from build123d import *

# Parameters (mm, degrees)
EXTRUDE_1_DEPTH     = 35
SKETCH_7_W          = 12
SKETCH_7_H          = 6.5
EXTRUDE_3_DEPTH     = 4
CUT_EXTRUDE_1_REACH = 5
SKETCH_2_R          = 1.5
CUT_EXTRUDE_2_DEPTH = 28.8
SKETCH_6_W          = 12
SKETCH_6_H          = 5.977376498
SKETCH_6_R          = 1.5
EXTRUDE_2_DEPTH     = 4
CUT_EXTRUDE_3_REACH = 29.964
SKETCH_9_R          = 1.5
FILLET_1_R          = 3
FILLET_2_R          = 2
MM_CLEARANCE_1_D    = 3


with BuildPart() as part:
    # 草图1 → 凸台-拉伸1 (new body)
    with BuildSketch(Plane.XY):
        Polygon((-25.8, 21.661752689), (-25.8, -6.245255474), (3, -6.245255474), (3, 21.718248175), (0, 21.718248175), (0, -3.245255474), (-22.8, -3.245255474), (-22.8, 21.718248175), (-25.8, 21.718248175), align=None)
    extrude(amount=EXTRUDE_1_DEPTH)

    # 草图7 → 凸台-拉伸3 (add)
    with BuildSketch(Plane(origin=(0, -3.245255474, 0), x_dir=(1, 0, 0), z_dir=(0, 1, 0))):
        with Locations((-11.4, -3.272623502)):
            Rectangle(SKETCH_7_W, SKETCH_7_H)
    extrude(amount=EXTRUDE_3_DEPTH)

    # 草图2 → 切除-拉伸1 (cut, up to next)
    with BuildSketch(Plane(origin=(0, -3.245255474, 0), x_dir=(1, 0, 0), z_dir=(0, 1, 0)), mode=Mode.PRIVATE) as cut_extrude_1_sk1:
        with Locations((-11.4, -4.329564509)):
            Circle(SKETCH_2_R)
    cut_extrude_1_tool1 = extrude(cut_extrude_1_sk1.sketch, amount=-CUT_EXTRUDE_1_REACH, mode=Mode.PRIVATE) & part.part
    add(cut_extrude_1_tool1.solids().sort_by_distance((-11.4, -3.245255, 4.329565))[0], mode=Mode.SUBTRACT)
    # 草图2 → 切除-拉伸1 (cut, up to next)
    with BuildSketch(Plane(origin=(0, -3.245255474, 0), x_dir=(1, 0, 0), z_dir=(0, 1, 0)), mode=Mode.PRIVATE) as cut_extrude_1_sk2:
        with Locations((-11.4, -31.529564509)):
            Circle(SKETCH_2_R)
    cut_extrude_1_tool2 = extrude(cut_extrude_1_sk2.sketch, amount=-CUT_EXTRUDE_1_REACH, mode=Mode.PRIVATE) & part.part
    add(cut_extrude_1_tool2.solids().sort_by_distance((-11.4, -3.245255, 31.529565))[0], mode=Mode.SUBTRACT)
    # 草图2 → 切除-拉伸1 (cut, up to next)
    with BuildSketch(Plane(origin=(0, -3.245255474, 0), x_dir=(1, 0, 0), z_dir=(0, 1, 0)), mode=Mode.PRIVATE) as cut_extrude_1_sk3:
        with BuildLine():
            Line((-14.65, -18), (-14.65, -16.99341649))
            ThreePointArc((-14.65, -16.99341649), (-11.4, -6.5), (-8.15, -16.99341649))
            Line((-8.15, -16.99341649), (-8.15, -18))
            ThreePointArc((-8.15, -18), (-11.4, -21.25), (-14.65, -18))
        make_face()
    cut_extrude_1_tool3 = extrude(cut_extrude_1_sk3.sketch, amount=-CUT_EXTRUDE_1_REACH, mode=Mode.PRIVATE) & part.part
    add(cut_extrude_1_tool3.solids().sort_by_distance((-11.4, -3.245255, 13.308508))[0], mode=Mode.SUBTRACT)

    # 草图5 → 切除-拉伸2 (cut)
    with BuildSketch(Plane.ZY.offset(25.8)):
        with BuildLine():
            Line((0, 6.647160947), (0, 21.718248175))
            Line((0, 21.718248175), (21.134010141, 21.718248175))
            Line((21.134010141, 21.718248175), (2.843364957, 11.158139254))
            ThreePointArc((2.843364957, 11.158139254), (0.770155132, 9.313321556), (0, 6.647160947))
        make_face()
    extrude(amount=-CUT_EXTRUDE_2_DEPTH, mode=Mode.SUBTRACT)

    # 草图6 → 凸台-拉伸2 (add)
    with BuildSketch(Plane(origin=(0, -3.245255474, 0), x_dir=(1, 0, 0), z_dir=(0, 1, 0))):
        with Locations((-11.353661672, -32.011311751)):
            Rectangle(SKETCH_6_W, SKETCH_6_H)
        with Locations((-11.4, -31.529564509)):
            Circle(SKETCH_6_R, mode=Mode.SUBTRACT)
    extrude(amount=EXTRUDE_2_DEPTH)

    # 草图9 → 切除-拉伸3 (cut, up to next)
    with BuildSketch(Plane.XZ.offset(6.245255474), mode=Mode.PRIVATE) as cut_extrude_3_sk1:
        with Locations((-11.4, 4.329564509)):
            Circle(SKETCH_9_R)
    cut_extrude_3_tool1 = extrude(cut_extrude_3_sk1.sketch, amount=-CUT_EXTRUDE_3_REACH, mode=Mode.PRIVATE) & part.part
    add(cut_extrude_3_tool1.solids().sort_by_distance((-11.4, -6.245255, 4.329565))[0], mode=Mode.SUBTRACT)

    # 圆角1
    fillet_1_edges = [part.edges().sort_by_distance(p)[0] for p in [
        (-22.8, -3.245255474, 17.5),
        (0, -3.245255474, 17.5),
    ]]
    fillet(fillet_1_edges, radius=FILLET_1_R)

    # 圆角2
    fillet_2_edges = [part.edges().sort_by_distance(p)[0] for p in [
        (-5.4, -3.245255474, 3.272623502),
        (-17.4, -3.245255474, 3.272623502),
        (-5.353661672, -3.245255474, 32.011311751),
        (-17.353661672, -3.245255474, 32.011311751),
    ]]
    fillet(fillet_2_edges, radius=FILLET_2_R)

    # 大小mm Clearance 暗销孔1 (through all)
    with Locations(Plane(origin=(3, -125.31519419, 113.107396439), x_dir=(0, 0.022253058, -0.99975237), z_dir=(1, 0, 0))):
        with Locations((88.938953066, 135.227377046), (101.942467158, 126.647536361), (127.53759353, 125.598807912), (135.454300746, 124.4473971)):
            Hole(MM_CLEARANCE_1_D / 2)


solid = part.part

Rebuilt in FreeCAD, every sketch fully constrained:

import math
import FreeCAD as App
import Part
import Sketcher

V = App.Vector
Q = App.Units.Quantity


def edges_at(feature, points):
    """Names of the edges that pass closest to the given points."""
    edges = feature.Shape.Edges
    near = lambda p: min(range(len(edges)), key=lambda i: edges[i].distToShape(Part.Vertex(*p))[0])
    return sorted({f"Edge{near(p) + 1}" for p in points})

doc = App.newDocument("Part")
body = doc.addObject("PartDesign::Body", "Body")

# Sketch on XY plane
sketch1 = body.newObject("Sketcher::SketchObject", "Sketch")
sketch1.AttachmentSupport = (doc.getObject("XY_Plane"), [""])
sketch1.MapMode = "FlatFace"
sketch1.addGeometry(Part.LineSegment(V(-25.8, -6.2, 0), V(3, -6.2, 0)), False)
sketch1.addGeometry(Part.LineSegment(V(3, -6.2, 0), V(3, 21.7, 0)), False)
sketch1.addGeometry(Part.LineSegment(V(3, 21.7, 0), V(0, 21.7, 0)), False)
sketch1.addGeometry(Part.LineSegment(V(0, 21.7, 0), V(0, -3.2, 0)), False)
sketch1.addGeometry(Part.LineSegment(V(0, -3.2, 0), V(-22.8, -3.2, 0)), False)
sketch1.addGeometry(Part.LineSegment(V(-22.8, -3.2, 0), V(-22.8, 21.7, 0)), False)
sketch1.addGeometry(Part.LineSegment(V(-22.8, 21.7, 0), V(-25.8, 21.7, 0)), False)
sketch1.addGeometry(Part.LineSegment(V(-25.8, 21.7, 0), V(-25.8, -6.2, 0)), False)
sketch1.addConstraint(Sketcher.Constraint("Coincident", 0, 2, 1, 1))
sketch1.addConstraint(Sketcher.Constraint("Coincident", 1, 2, 2, 1))
sketch1.addConstraint(Sketcher.Constraint("Coincident", 2, 2, 3, 1))
sketch1.addConstraint(Sketcher.Constraint("Coincident", 3, 2, 4, 1))
sketch1.addConstraint(Sketcher.Constraint("Coincident", 4, 2, 5, 1))
sketch1.addConstraint(Sketcher.Constraint("Coincident", 5, 2, 6, 1))
sketch1.addConstraint(Sketcher.Constraint("Coincident", 6, 2, 7, 1))
sketch1.addConstraint(Sketcher.Constraint("Coincident", 7, 2, 0, 1))
sketch1.addConstraint(Sketcher.Constraint("Horizontal", 0))
sketch1.addConstraint(Sketcher.Constraint("Vertical", 1))
sketch1.addConstraint(Sketcher.Constraint("Horizontal", 2))
sketch1.addConstraint(Sketcher.Constraint("Vertical", 3))
sketch1.addConstraint(Sketcher.Constraint("Horizontal", 4))
sketch1.addConstraint(Sketcher.Constraint("Vertical", 5))
sketch1.addConstraint(Sketcher.Constraint("Horizontal", 6))
sketch1.addConstraint(Sketcher.Constraint("Vertical", 7))
sketch1.addConstraint(Sketcher.Constraint("PointOnObject", 2, 2, -2))
sketch1.addConstraint(Sketcher.Constraint("Horizontal", 2, 2, 5, 2))
sketch1.addConstraint(Sketcher.Constraint("Equal", 2, 6))
sketch1.addConstraint(Sketcher.Constraint("DistanceX", 2, 2, 2, 1, Q("3 mm")))
sketch1.addConstraint(Sketcher.Constraint("DistanceX", 0, 1, 0, 2, Q("28.8 mm")))
sketch1.addConstraint(Sketcher.Constraint("DistanceY", 0, 2, 3, 2, Q("3 mm")))
sketch1.addConstraint(Sketcher.Constraint("DistanceY", 1, 1, 1, 2, Q("27.963504 mm")))
sketch1.addConstraint(Sketcher.Constraint("DistanceY", -1, 1, 1, 2, Q("21.718248 mm")))
pad1 = body.newObject("PartDesign::Pad", "Pad")
pad1.Profile = sketch1
pad1.Length = 35

# Sketch on XZ plane
sketch2 = body.newObject("Sketcher::SketchObject", "Sketch001")
sketch2.AttachmentSupport = (doc.getObject("XZ_Plane"), [""])
sketch2.MapMode = "FlatFace"
sketch2.AttachmentOffset = App.Placement(V(0, 0, 3.245255), App.Rotation())
sketch2.addGeometry(Part.LineSegment(V(-17, 0, 0), V(-17, 7, 0)), False)
sketch2.addGeometry(Part.LineSegment(V(-17, 7, 0), V(-5, 7, 0)), False)
sketch2.addGeometry(Part.LineSegment(V(-5, 7, 0), V(-5, 0, 0)), False)
sketch2.addGeometry(Part.LineSegment(V(-5, 0, 0), V(-17, 0, 0)), False)
sketch2.addConstraint(Sketcher.Constraint("Coincident", 0, 2, 1, 1))
sketch2.addConstraint(Sketcher.Constraint("Coincident", 1, 2, 2, 1))
sketch2.addConstraint(Sketcher.Constraint("Coincident", 2, 2, 3, 1))
sketch2.addConstraint(Sketcher.Constraint("Coincident", 3, 2, 0, 1))
sketch2.addConstraint(Sketcher.Constraint("Vertical", 0))
sketch2.addConstraint(Sketcher.Constraint("Horizontal", 1))
sketch2.addConstraint(Sketcher.Constraint("Vertical", 2))
sketch2.addConstraint(Sketcher.Constraint("Horizontal", 3))
sketch2.addConstraint(Sketcher.Constraint("DistanceX", 1, 1, 1, 2, Q("12 mm")))
sketch2.addConstraint(Sketcher.Constraint("DistanceY", 0, 1, 0, 2, Q("6.5 mm")))
sketch2.addConstraint(Sketcher.Constraint("DistanceX", 0, 2, -1, 1, Q("17.4 mm")))
sketch2.addConstraint(Sketcher.Constraint("DistanceY", -1, 1, 0, 2, Q("6.522624 mm")))
pad2 = body.newObject("PartDesign::Pad", "Pad001")
pad2.Profile = sketch2
pad2.Length = 4
pad2.Reversed = True

# Sketch on XZ plane
sketch3 = body.newObject("Sketcher::SketchObject", "Sketch002")
sketch3.AttachmentSupport = (doc.getObject("XZ_Plane"), [""])
sketch3.MapMode = "FlatFace"
sketch3.AttachmentOffset = App.Placement(V(0, 0, 3.245255), App.Rotation())
sketch3.addGeometry(Part.Circle(V(-11.4, 4.3, 0), V(0, 0, 1), 1.5), False)
sketch3.addConstraint(Sketcher.Constraint("Diameter", 0, Q("3 mm")))
sketch3.addConstraint(Sketcher.Constraint("DistanceX", 0, 3, -1, 1, Q("11.4 mm")))
sketch3.addConstraint(Sketcher.Constraint("DistanceY", -1, 1, 0, 3, Q("4.329565 mm")))
pocket1 = body.newObject("PartDesign::Pocket", "Pocket")
pocket1.Profile = sketch3
pocket1.Type = "UpToFirst"
pocket1.Reversed = True

# Sketch on XZ plane
sketch4 = body.newObject("Sketcher::SketchObject", "Sketch003")
sketch4.AttachmentSupport = (doc.getObject("XZ_Plane"), [""])
sketch4.MapMode = "FlatFace"
sketch4.AttachmentOffset = App.Placement(V(0, 0, 3.245255), App.Rotation())
sketch4.addGeometry(Part.Circle(V(-11.4, 31.5, 0), V(0, 0, 1), 1.5), False)
sketch4.addConstraint(Sketcher.Constraint("Diameter", 0, Q("3 mm")))
sketch4.addConstraint(Sketcher.Constraint("DistanceX", 0, 3, -1, 1, Q("11.4 mm")))
sketch4.addConstraint(Sketcher.Constraint("DistanceY", -1, 1, 0, 3, Q("31.529565 mm")))
pocket2 = body.newObject("PartDesign::Pocket", "Pocket001")
pocket2.Profile = sketch4
pocket2.Type = "UpToFirst"
pocket2.Reversed = True

# Sketch on XZ plane
sketch5 = body.newObject("Sketcher::SketchObject", "Sketch004")
sketch5.AttachmentSupport = (doc.getObject("XZ_Plane"), [""])
sketch5.MapMode = "FlatFace"
sketch5.AttachmentOffset = App.Placement(V(0, 0, 3.245255), App.Rotation())
sketch5.addGeometry(Part.LineSegment(V(-14.7, 17, 0), V(-14.7, 18, 0)), False)
sketch5.addGeometry(Part.ArcOfCircle(Part.Circle(V(-11.4, 18, 0), V(0, 0, 1), 3.2), math.radians(0), math.radians(180)), False)
sketch5.addGeometry(Part.LineSegment(V(-8.2, 18, 0), V(-8.2, 17, 0)), False)
sketch5.addGeometry(Part.ArcOfCircle(Part.Circle(V(-11.4, 12.2, 0), V(0, 0, 1), 5.8), math.radians(124), math.radians(416)), False)
sketch5.addConstraint(Sketcher.Constraint("Tangent", 0, 2, 1, 2))
sketch5.addConstraint(Sketcher.Constraint("Tangent", 1, 1, 2, 1))
sketch5.addConstraint(Sketcher.Constraint("Coincident", 2, 2, 3, 2))
sketch5.addConstraint(Sketcher.Constraint("Coincident", 3, 1, 0, 1))
sketch5.addConstraint(Sketcher.Constraint("Vertical", 0))
sketch5.addConstraint(Sketcher.Constraint("Vertical", 2))
sketch5.addConstraint(Sketcher.Constraint("Horizontal", 2, 2, 3, 1))
sketch5.addConstraint(Sketcher.Constraint("Radius", 1, Q("3.25 mm")))
sketch5.addConstraint(Sketcher.Constraint("Radius", 3, Q("5.75 mm")))
sketch5.addConstraint(Sketcher.Constraint("DistanceY", -1, 1, 1, 3, Q("18 mm")))
sketch5.addConstraint(Sketcher.Constraint("DistanceX", 1, 3, -1, 1, Q("11.4 mm")))
sketch5.addConstraint(Sketcher.Constraint("DistanceY", -1, 1, 3, 3, Q("12.25 mm")))
pocket3 = body.newObject("PartDesign::Pocket", "Pocket002")
pocket3.Profile = sketch5
pocket3.Type = "UpToFirst"
pocket3.Reversed = True

# Sketch on YZ plane
sketch6 = body.newObject("Sketcher::SketchObject", "Sketch005")
sketch6.AttachmentSupport = (doc.getObject("YZ_Plane"), [""])
sketch6.MapMode = "FlatFace"
sketch6.AttachmentOffset = App.Placement(V(0, 0, -25.8), App.Rotation())
sketch6.addGeometry(Part.LineSegment(V(21.7, 0, 0), V(6.6, 0, 0)), False)
sketch6.addGeometry(Part.ArcOfCircle(Part.Circle(V(6.6, 5, 0), V(0, 0, 1), 5), math.radians(-90), math.radians(-26)), False)
sketch6.addGeometry(Part.LineSegment(V(11.2, 2.8, 0), V(21.7, 21.1, 0)), False)
sketch6.addGeometry(Part.LineSegment(V(21.7, 21.1, 0), V(21.7, 0, 0)), False)
sketch6.addConstraint(Sketcher.Constraint("Tangent", 0, 2, 1, 1))
sketch6.addConstraint(Sketcher.Constraint("Coincident", 1, 2, 2, 1))
sketch6.addConstraint(Sketcher.Constraint("Coincident", 2, 2, 3, 1))
sketch6.addConstraint(Sketcher.Constraint("Coincident", 3, 2, 0, 1))
sketch6.addConstraint(Sketcher.Constraint("Horizontal", 0))
sketch6.addConstraint(Sketcher.Constraint("Vertical", 3))
sketch6.addConstraint(Sketcher.Constraint("PointOnObject", 0, 2, -1))
sketch6.addConstraint(Sketcher.Constraint("Radius", 1, Q("5 mm")))
sketch6.addConstraint(Sketcher.Constraint("Angle", 2, Q("60 deg")))
sketch6.addConstraint(Sketcher.Constraint("DistanceY", 3, 2, 3, 1, Q("21.13401 mm")))
sketch6.addConstraint(Sketcher.Constraint("DistanceX", 0, 2, 0, 1, Q("15.071087 mm")))
sketch6.addConstraint(Sketcher.Constraint("DistanceX", -1, 1, 1, 3, Q("6.647161 mm")))
pocket4 = body.newObject("PartDesign::Pocket", "Pocket003")
pocket4.Profile = sketch6
pocket4.Length = 28.8
pocket4.Reversed = True

# Sketch on XZ plane
sketch7 = body.newObject("Sketcher::SketchObject", "Sketch006")
sketch7.AttachmentSupport = (doc.getObject("XZ_Plane"), [""])
sketch7.MapMode = "FlatFace"
sketch7.AttachmentOffset = App.Placement(V(0, 0, 3.245255), App.Rotation())
sketch7.addGeometry(Part.LineSegment(V(-17.4, 29, 0), V(-17.4, 35, 0)), False)
sketch7.addGeometry(Part.LineSegment(V(-17.4, 35, 0), V(-5.4, 35, 0)), False)
sketch7.addGeometry(Part.LineSegment(V(-5.4, 35, 0), V(-5.4, 29, 0)), False)
sketch7.addGeometry(Part.LineSegment(V(-5.4, 29, 0), V(-17.4, 29, 0)), False)
sketch7.addGeometry(Part.Circle(V(-11.4, 31.5, 0), V(0, 0, 1), 1.5), False)
sketch7.addConstraint(Sketcher.Constraint("Coincident", 0, 2, 1, 1))
sketch7.addConstraint(Sketcher.Constraint("Coincident", 1, 2, 2, 1))
sketch7.addConstraint(Sketcher.Constraint("Coincident", 2, 2, 3, 1))
sketch7.addConstraint(Sketcher.Constraint("Coincident", 3, 2, 0, 1))
sketch7.addConstraint(Sketcher.Constraint("Vertical", 0))
sketch7.addConstraint(Sketcher.Constraint("Horizontal", 1))
sketch7.addConstraint(Sketcher.Constraint("Vertical", 2))
sketch7.addConstraint(Sketcher.Constraint("Horizontal", 3))
sketch7.addConstraint(Sketcher.Constraint("Diameter", 4, Q("3 mm")))
sketch7.addConstraint(Sketcher.Constraint("DistanceX", 1, 1, 1, 2, Q("12 mm")))
sketch7.addConstraint(Sketcher.Constraint("DistanceY", -1, 1, 0, 2, Q("35 mm")))
sketch7.addConstraint(Sketcher.Constraint("DistanceX", 4, 3, -1, 1, Q("11.4 mm")))
sketch7.addConstraint(Sketcher.Constraint("DistanceY", 0, 1, 0, 2, Q("5.977376 mm")))
sketch7.addConstraint(Sketcher.Constraint("DistanceX", 0, 2, -1, 1, Q("17.353662 mm")))
sketch7.addConstraint(Sketcher.Constraint("DistanceY", 2, 2, 4, 3, Q("2.506941 mm")))
pad3 = body.newObject("PartDesign::Pad", "Pad002")
pad3.Profile = sketch7
pad3.Length = 4
pad3.Reversed = True

# Sketch on XZ plane
sketch8 = body.newObject("Sketcher::SketchObject", "Sketch007")
sketch8.AttachmentSupport = (doc.getObject("XZ_Plane"), [""])
sketch8.MapMode = "FlatFace"
sketch8.AttachmentOffset = App.Placement(V(0, 0, 6.245255), App.Rotation())
sketch8.addGeometry(Part.Circle(V(-11.4, 4.3, 0), V(0, 0, 1), 1.5), False)
sketch8.addConstraint(Sketcher.Constraint("Diameter", 0, Q("3 mm")))
sketch8.addConstraint(Sketcher.Constraint("DistanceX", 0, 3, -1, 1, Q("11.4 mm")))
sketch8.addConstraint(Sketcher.Constraint("DistanceY", -1, 1, 0, 3, Q("4.329565 mm")))
pocket5 = body.newObject("PartDesign::Pocket", "Pocket004")
pocket5.Profile = sketch8
pocket5.Length = 7
doc.recompute()

fillet = body.newObject("PartDesign::Fillet", "Fillet")
fillet.Base = (pocket5, edges_at(pocket5, [(-22.8, -3.245, 17.5), (0, -3.245, 17.5)]))
fillet.Radius = 3
doc.recompute()

fillet2 = body.newObject("PartDesign::Fillet", "Fillet001")
fillet2.Base = (fillet, edges_at(fillet, [
    (-5.4, -3.245, 3.273),
    (-17.4, -3.245, 3.273),
    (-5.354, -3.245, 32.011),
    (-17.354, -3.245, 32.011),
]))
fillet2.Radius = 2

# Sketch on YZ plane
sketch9 = body.newObject("Sketcher::SketchObject", "Sketch008")
sketch9.AttachmentSupport = (doc.getObject("YZ_Plane"), [""])
sketch9.MapMode = "FlatFace"
sketch9.AttachmentOffset = App.Placement(V(0, 0, 3), App.Rotation())
sketch9.addGeometry(Part.Circle(V(11.9, 27.2, 0), V(0, 0, 1), 1.5), False)
sketch9.addGeometry(Part.Circle(V(3.6, 14, 0), V(0, 0, 1), 1.5), False)
sketch9.addGeometry(Part.Circle(V(3.1, -11.6, 0), V(0, 0, 1), 1.5), False)
sketch9.addGeometry(Part.Circle(V(2.1, -19.5, 0), V(0, 0, 1), 1.5), False)
sketch9.addConstraint(Sketcher.Constraint("Equal", 0, 1))
sketch9.addConstraint(Sketcher.Constraint("Equal", 1, 2))
sketch9.addConstraint(Sketcher.Constraint("Equal", 2, 3))
sketch9.addConstraint(Sketcher.Constraint("Diameter", 0, Q("3 mm")))
sketch9.addConstraint(Sketcher.Constraint("DistanceX", 2, 3, 1, 3, Q("0.478899 mm")))
sketch9.addConstraint(Sketcher.Constraint("DistanceX", 3, 3, 0, 3, Q("9.742202 mm")))
sketch9.addConstraint(Sketcher.Constraint("DistanceX", -1, 1, 0, 3, Q("11.85786 mm")))
sketch9.addConstraint(Sketcher.Constraint("DistanceY", -1, 1, 0, 3, Q("27.19969 mm")))
sketch9.addConstraint(Sketcher.Constraint("DistanceY", -1, 1, 1, 3, Q("14.008468 mm")))
sketch9.addConstraint(Sketcher.Constraint("DistanceX", 1, 3, 0, 3, Q("8.288348 mm")))
sketch9.addConstraint(Sketcher.Constraint("DistanceY", 3, 3, 2, 3, Q("7.940369 mm")))
sketch9.addConstraint(Sketcher.Constraint("DistanceY", 2, 3, -1, 1, Q("11.603657 mm")))
doc.recompute()
hole = body.newObject("PartDesign::Hole", "Hole")
hole.Profile = sketch9
hole.ThreadType = "None"
hole.Diameter = 3
hole.DepthType = "ThroughAll"

doc.recompute()
